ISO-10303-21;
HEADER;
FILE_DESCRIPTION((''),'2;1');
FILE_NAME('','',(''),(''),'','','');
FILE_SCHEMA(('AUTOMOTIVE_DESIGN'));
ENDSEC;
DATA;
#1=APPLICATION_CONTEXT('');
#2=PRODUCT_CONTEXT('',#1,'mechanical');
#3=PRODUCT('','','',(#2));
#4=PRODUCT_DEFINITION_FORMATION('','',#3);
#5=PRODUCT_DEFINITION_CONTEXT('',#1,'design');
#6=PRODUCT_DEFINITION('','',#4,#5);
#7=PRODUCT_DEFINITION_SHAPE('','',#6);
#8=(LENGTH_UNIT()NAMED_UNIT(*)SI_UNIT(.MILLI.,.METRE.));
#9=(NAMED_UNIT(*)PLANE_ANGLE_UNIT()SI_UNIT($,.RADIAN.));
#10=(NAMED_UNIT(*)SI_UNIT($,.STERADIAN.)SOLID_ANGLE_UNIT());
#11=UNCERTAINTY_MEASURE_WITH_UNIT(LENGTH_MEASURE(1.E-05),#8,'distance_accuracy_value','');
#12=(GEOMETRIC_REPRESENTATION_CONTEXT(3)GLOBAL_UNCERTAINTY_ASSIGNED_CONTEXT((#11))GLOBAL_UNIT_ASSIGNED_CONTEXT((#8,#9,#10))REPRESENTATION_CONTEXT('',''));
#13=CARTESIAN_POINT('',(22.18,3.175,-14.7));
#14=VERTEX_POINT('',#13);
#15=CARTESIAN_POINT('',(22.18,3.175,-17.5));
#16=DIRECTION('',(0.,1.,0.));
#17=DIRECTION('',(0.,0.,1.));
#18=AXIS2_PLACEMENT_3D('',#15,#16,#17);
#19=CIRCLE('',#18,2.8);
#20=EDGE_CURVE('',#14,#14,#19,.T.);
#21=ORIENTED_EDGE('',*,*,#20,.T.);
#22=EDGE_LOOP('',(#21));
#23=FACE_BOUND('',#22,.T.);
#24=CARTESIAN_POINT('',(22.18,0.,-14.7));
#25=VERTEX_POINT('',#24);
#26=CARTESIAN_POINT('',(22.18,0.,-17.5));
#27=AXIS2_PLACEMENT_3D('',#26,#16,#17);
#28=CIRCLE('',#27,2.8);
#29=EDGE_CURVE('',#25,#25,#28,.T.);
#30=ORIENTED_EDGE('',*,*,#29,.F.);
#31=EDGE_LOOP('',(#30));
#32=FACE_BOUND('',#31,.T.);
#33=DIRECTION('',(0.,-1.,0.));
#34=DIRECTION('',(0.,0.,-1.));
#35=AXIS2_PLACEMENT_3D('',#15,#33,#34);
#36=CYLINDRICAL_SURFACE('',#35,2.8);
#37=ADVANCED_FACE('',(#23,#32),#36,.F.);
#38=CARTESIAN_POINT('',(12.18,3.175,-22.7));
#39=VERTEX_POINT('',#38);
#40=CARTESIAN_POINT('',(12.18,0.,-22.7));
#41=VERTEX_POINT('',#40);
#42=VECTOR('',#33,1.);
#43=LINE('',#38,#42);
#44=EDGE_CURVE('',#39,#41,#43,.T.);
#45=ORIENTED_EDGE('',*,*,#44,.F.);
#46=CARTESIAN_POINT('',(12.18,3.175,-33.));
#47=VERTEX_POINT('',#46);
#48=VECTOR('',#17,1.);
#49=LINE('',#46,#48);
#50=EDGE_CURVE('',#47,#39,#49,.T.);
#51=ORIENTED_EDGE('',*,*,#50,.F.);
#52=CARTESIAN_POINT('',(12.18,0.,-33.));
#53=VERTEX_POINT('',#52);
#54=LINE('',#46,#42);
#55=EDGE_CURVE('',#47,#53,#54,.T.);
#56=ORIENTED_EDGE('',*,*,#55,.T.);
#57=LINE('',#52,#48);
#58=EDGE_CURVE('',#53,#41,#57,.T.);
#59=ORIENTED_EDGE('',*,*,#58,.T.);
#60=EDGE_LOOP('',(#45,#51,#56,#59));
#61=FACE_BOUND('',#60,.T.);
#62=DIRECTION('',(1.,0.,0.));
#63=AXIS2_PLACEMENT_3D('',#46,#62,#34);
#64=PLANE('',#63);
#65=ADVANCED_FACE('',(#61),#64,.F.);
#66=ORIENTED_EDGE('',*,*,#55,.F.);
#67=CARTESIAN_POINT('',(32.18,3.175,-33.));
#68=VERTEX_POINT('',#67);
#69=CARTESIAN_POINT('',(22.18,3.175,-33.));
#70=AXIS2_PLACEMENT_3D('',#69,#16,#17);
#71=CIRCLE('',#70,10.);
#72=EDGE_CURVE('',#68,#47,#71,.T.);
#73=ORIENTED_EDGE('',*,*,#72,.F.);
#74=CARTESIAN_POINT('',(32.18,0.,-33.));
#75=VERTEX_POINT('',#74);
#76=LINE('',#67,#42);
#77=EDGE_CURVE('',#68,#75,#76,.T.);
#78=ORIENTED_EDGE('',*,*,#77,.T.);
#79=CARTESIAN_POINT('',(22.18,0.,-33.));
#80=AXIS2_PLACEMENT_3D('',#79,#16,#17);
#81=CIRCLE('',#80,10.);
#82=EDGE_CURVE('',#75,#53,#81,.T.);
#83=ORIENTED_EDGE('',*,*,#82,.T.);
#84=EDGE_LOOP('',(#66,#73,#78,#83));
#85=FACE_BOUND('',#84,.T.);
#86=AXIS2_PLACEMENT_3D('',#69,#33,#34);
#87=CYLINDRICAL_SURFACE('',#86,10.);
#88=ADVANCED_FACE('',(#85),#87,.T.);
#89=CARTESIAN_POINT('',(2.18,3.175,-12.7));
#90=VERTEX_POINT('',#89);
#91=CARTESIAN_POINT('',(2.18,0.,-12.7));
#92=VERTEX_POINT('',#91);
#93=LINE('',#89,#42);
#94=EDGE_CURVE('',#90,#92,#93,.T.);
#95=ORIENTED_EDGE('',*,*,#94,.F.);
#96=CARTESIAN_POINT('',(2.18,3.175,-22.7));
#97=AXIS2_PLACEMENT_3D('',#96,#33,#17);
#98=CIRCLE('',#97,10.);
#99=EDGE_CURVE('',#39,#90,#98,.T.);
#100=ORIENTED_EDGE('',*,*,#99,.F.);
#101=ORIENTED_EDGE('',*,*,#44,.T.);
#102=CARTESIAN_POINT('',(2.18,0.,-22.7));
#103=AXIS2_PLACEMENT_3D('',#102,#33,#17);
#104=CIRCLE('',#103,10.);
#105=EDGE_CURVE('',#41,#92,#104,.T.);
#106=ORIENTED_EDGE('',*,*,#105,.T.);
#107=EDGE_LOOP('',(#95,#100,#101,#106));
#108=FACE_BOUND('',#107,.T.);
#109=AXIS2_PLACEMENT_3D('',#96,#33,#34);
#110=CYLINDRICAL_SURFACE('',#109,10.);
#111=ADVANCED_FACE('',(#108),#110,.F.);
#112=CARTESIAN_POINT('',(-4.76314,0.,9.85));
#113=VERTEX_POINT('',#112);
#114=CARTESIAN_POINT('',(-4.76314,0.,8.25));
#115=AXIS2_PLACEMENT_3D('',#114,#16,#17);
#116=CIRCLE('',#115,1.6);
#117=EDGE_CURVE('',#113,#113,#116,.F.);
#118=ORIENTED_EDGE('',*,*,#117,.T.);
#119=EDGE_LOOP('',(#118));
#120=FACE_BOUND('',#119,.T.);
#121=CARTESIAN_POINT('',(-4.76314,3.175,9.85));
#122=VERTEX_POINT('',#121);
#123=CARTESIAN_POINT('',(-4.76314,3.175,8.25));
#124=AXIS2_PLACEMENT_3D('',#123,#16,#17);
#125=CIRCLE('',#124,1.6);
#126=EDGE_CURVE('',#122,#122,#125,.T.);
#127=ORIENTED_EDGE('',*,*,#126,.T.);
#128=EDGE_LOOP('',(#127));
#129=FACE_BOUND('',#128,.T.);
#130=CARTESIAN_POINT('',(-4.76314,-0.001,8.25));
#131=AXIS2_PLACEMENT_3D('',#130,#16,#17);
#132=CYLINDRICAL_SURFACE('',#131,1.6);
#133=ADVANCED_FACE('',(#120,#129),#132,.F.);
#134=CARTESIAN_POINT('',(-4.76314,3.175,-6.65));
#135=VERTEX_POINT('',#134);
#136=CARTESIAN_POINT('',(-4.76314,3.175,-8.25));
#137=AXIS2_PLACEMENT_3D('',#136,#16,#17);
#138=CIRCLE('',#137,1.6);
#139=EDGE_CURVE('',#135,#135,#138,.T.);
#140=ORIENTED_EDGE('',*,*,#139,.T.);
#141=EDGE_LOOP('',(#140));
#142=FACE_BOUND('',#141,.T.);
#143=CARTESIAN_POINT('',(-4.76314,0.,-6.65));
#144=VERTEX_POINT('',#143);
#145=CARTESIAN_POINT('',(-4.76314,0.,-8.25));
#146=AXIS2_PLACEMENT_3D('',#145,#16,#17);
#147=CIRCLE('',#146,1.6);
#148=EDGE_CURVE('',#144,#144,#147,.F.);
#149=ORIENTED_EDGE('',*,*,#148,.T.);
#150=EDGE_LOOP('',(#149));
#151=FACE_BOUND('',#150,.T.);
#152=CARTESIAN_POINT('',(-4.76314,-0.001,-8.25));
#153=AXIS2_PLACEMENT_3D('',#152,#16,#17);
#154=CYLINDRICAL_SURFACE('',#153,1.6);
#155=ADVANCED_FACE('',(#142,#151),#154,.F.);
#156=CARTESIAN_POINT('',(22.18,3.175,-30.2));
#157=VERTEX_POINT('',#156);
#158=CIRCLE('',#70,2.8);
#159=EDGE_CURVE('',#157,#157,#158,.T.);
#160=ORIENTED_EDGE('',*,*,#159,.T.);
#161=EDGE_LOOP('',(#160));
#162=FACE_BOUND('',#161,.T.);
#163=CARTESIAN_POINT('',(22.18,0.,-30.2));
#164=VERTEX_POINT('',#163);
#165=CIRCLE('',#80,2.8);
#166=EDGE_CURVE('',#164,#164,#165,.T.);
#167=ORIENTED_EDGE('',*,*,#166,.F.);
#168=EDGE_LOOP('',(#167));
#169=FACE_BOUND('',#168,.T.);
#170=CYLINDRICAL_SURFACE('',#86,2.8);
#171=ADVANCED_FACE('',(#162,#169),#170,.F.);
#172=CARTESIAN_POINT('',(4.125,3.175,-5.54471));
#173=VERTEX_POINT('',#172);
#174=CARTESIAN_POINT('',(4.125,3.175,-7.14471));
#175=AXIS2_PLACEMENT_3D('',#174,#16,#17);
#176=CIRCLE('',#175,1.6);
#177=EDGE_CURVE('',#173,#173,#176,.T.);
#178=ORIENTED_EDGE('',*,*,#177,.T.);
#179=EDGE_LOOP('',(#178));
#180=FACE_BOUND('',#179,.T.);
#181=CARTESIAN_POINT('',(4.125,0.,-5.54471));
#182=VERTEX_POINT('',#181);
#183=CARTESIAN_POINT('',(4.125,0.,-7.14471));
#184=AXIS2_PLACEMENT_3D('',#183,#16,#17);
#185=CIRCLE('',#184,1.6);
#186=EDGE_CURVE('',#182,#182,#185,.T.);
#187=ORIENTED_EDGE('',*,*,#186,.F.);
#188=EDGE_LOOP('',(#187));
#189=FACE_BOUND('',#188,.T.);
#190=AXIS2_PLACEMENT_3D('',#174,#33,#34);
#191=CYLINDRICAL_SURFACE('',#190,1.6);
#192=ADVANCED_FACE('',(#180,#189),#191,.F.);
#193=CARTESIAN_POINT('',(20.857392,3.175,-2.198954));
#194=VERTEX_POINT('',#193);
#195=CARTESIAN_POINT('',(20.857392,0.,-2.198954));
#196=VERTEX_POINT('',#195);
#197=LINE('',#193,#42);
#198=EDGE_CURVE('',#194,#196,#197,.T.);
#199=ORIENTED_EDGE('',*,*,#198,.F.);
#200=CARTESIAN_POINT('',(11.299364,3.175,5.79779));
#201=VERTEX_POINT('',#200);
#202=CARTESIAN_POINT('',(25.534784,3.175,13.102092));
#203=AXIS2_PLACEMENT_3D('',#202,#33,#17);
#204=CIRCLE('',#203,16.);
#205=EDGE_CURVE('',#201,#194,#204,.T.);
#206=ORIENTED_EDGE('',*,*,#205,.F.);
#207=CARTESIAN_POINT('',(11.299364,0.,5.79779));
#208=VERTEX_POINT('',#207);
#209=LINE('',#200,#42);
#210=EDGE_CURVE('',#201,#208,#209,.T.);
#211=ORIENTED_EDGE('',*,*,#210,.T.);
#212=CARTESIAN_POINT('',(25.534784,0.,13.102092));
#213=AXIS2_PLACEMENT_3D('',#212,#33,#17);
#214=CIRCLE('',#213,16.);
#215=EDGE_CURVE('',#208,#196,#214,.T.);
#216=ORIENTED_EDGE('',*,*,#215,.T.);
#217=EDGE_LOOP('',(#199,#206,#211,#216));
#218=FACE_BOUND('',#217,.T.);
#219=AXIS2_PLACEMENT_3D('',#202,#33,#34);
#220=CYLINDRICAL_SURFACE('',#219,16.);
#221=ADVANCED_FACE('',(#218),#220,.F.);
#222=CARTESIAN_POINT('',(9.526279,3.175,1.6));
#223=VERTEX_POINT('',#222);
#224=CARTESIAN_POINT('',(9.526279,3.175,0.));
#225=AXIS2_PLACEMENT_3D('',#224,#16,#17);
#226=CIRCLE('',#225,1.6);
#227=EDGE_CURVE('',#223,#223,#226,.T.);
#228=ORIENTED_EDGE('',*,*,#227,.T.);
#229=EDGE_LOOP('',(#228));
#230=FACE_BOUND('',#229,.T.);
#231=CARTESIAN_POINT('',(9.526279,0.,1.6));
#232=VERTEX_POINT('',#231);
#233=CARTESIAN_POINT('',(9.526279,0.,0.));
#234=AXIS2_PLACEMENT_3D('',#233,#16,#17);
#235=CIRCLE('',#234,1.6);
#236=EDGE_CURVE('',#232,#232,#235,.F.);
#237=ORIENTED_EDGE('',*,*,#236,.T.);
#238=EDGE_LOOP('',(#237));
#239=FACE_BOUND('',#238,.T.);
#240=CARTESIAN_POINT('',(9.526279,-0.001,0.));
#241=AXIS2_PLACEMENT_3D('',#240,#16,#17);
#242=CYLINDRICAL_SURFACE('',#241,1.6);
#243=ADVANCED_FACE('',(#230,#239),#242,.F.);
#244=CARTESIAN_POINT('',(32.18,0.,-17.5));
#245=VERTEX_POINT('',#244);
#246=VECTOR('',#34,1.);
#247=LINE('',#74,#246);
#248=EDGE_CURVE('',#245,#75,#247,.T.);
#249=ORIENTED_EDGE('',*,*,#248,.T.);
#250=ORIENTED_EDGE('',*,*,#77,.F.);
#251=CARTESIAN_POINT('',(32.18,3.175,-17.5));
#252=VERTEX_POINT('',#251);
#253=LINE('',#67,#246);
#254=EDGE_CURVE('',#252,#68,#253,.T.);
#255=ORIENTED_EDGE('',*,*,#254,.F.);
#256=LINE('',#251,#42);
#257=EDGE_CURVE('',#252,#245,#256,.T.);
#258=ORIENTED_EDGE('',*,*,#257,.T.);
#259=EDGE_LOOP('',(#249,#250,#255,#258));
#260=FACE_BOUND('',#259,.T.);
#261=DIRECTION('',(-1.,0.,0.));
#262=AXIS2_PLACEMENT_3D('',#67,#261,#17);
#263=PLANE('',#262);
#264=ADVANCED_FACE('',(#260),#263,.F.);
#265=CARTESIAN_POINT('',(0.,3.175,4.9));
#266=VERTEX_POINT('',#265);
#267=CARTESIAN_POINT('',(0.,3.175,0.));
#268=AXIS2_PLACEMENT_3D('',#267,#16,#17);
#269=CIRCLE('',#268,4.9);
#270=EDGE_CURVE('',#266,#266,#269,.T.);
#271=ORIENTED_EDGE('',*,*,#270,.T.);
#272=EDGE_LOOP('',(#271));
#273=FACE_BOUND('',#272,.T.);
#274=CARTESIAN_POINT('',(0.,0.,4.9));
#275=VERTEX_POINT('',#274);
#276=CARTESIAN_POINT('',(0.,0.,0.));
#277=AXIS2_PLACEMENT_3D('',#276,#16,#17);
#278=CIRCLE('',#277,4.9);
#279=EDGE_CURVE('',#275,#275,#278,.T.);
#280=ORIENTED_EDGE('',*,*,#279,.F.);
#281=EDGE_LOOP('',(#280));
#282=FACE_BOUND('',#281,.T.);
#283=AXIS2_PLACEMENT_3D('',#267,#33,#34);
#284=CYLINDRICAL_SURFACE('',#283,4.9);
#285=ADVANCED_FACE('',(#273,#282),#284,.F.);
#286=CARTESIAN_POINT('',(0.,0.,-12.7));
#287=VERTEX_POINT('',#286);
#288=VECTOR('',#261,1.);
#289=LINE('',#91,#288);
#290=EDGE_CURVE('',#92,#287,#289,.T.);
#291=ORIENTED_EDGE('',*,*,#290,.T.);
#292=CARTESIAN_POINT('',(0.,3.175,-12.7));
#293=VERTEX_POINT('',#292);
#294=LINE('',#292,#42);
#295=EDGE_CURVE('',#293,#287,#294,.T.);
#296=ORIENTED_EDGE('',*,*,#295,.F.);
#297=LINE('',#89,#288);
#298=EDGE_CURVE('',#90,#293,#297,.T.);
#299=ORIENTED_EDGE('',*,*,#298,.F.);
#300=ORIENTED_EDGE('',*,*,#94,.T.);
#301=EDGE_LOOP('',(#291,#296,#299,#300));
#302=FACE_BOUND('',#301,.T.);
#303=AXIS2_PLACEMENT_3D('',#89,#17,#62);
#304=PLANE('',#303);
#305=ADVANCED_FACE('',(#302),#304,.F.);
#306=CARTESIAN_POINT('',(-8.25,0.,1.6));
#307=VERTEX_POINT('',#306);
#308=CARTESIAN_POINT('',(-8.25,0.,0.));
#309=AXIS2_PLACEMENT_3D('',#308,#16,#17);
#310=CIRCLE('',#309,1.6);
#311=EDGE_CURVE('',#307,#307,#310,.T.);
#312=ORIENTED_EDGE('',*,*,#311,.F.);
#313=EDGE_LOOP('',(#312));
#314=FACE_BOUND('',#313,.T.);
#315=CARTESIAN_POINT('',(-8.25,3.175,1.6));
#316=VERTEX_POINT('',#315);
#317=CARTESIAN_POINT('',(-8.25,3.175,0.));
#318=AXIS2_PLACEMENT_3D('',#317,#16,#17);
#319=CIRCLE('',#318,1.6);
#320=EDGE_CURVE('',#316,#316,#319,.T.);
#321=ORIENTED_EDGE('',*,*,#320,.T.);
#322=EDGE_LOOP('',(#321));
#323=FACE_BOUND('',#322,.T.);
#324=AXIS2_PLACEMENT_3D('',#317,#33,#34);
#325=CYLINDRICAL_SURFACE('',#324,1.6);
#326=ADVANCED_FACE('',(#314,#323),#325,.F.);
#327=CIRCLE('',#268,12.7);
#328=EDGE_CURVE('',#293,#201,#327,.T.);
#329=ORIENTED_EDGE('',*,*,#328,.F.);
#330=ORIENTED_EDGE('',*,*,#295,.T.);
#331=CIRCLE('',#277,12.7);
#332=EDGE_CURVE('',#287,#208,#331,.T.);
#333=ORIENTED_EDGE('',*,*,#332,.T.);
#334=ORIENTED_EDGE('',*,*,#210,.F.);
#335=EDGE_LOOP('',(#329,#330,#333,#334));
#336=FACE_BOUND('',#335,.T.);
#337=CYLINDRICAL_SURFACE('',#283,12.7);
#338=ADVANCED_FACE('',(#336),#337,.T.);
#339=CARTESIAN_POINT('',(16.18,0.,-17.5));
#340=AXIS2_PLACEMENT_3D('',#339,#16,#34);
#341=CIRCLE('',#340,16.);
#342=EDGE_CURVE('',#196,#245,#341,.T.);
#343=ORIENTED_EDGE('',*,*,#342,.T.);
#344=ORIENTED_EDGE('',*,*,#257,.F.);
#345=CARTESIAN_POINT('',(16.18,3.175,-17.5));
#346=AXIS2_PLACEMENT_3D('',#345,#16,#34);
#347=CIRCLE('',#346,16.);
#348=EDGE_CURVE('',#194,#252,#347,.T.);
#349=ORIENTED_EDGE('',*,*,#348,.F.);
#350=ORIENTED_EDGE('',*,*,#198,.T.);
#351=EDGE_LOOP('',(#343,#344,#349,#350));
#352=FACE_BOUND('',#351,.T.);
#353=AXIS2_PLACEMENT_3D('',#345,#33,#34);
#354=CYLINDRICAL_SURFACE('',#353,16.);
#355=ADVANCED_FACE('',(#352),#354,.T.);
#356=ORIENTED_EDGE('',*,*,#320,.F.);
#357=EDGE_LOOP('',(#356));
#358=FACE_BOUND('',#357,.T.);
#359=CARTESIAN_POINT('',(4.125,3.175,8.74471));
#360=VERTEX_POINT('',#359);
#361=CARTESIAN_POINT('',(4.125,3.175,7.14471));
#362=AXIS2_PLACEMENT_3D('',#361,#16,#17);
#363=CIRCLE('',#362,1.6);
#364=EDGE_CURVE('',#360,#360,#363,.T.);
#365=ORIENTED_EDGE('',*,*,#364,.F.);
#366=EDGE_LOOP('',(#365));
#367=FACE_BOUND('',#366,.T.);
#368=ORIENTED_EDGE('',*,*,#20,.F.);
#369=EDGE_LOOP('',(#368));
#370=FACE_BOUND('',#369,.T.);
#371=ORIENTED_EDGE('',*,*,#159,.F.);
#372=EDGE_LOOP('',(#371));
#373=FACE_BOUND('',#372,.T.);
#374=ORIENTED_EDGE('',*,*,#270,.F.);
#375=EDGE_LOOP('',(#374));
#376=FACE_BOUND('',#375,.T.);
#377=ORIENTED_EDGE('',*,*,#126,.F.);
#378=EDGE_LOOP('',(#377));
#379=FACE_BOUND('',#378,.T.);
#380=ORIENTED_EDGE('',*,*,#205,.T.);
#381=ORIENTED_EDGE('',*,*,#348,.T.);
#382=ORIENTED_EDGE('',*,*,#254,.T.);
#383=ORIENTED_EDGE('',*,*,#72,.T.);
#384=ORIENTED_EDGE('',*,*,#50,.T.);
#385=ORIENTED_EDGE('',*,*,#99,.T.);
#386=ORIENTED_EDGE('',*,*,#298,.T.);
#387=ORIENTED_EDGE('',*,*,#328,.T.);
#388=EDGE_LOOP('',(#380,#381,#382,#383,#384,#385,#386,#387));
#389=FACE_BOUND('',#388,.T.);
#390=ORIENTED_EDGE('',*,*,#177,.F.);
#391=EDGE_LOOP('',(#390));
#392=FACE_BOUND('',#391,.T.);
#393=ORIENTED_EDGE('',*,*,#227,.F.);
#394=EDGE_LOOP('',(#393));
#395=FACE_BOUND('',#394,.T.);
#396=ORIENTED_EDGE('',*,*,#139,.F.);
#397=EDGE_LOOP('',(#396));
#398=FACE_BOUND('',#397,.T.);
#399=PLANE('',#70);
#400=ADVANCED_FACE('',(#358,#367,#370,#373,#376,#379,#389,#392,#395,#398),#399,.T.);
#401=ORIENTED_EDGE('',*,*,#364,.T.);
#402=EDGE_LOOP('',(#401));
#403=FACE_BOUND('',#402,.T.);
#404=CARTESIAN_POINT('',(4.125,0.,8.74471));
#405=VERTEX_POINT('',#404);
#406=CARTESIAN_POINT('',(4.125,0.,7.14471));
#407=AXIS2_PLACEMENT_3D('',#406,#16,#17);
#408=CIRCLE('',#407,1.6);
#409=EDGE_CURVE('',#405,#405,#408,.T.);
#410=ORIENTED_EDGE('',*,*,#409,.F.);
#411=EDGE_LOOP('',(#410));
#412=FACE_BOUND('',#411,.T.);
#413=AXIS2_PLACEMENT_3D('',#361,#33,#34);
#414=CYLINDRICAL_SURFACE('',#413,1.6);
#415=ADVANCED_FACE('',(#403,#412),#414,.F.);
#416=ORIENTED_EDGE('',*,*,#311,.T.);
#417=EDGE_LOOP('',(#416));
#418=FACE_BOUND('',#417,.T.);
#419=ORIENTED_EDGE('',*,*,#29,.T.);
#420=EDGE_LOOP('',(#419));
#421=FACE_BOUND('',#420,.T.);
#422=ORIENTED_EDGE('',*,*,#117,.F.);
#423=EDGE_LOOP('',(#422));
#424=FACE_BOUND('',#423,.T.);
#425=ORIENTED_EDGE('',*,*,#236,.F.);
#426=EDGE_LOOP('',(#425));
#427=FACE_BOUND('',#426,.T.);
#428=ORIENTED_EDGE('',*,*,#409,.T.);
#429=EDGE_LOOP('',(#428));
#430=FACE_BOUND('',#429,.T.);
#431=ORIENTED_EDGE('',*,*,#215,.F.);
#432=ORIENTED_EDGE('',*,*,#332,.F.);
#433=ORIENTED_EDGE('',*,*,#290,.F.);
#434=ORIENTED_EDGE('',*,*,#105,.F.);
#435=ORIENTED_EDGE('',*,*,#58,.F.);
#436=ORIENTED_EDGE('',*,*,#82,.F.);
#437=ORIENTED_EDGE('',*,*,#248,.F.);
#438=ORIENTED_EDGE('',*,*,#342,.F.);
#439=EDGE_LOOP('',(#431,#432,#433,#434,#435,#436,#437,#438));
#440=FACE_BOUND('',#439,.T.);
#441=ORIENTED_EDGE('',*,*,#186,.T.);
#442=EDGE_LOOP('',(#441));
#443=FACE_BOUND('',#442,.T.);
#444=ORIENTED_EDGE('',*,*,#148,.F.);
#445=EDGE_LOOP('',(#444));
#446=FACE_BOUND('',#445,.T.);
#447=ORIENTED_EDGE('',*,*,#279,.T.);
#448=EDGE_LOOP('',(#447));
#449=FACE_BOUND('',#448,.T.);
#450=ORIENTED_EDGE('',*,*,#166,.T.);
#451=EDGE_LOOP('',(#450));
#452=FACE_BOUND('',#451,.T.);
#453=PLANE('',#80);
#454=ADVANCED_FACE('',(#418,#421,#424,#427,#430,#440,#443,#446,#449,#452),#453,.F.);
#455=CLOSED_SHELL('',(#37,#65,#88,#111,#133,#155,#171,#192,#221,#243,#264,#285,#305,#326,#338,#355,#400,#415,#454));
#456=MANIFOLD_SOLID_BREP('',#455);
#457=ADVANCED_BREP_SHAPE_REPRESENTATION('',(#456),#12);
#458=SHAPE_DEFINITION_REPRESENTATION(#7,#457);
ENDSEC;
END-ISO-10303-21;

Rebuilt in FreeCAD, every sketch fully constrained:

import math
import FreeCAD as App
import Part
import Sketcher
from FreeCAD import Vector

doc = App.newDocument("Part")
body = doc.addObject("PartDesign::Body", "Body")

sketch1 = body.newObject("Sketcher::SketchObject", "Sketch")
sketch1.AttachmentSupport = (doc.getObject("XZ_Plane"), [""])
sketch1.MapMode = "FlatFace"
sketch1.addGeometry([
    Part.LineSegment(Vector(12.2, -33, 0), Vector(12.2, -22.7, 0)),
    Part.ArcOfCircle(Part.Circle(Vector(2.2, -22.7, 0), Vector(0, 0, 1), 10), math.radians(0), math.radians(90)),
    Part.LineSegment(Vector(2.2, -12.7, 0), Vector(0, -12.7, 0)),
    Part.ArcOfCircle(Part.Circle(Vector(0, 0, 0), Vector(0, 0, 1), 12.7), math.radians(27), math.radians(270)),
    Part.ArcOfCircle(Part.Circle(Vector(25.5, 13.1, 0), Vector(0, 0, 1), 16), math.radians(-153), math.radians(-107)),
    Part.ArcOfCircle(Part.Circle(Vector(16.2, -17.5, 0), Vector(0, 0, 1), 16), math.radians(0), math.radians(73)),
    Part.LineSegment(Vector(32.2, -17.5, 0), Vector(32.2, -33, 0)),
    Part.ArcOfCircle(Part.Circle(Vector(22.2, -33, 0), Vector(0, 0, 1), 10), math.radians(180), math.radians(360)),
    Part.Circle(Vector(-8.2, 0, 0), Vector(0, 0, 1), 1.6),
    Part.Circle(Vector(4.1, 7.1, 0), Vector(0, 0, 1), 1.6),
    Part.Circle(Vector(0, 0, 0), Vector(0, 0, 1), 4.9),
    Part.Circle(Vector(4.1, -7.1, 0), Vector(0, 0, 1), 1.6),
    Part.Circle(Vector(22.2, -17.5, 0), Vector(0, 0, 1), 2.8),
    Part.Circle(Vector(22.2, -33, 0), Vector(0, 0, 1), 2.8),
], False)
sketch1.addConstraint([
    Sketcher.Constraint("Tangent", 0, 2, 1, 1),
    Sketcher.Constraint("Tangent", 1, 2, 2, 1),
    Sketcher.Constraint("Tangent", 2, 2, 3, 2),
    Sketcher.Constraint("Tangent", 3, 1, 4, 1),
    Sketcher.Constraint("Tangent", 4, 2, 5, 2),
    Sketcher.Constraint("Tangent", 5, 1, 6, 1),
    Sketcher.Constraint("Tangent", 6, 2, 7, 2),
    Sketcher.Constraint("Tangent", 7, 1, 0, 1),
    Sketcher.Constraint("Vertical", 0),
    Sketcher.Constraint("Horizontal", 2),
    Sketcher.Constraint("Vertical", 6),
    Sketcher.Constraint("Coincident", 3, 3, -1, 1),
    Sketcher.Constraint("Coincident", 10, 3, -1, 1),
    Sketcher.Constraint("Coincident", 13, 3, 7, 3),
    Sketcher.Constraint("Equal", 4, 5),
    Sketcher.Constraint("Equal", 1, 7),
    Sketcher.Constraint("Equal", 8, 9),
    Sketcher.Constraint("Equal", 9, 11),
    Sketcher.Constraint("Equal", 12, 13),
    Sketcher.Constraint("Symmetric", 9, 3, 11, 3, -1),
    Sketcher.Constraint("PointOnObject", 8, 3, -1),
    Sketcher.Constraint("Horizontal", 5, 3, 12, 3),
    Sketcher.Constraint("Vertical", 7, 3, 12, 3),
    Sketcher.Constraint("Radius", 1, 10.0),
    Sketcher.Constraint("Radius", 4, 16.0),
    Sketcher.Constraint("Diameter", 8, 3.2),
    Sketcher.Constraint("Diameter", 10, 9.8),
    Sketcher.Constraint("Diameter", 12, 5.6),
    Sketcher.Constraint("Radius", 3, 12.7),
    Sketcher.Constraint("DistanceY", 0, 1, 0, 2, 10.3),
    Sketcher.Constraint("DistanceY", 6, 2, 6, 1, 15.5),
    Sketcher.Constraint("DistanceX", 2, 2, 2, 1, 2.18),
    Sketcher.Constraint("DistanceX", 8, 3, -1, 1, 8.25),
    Sketcher.Constraint("DistanceX", -1, 1, 9, 3, 4.125),
    Sketcher.Constraint("DistanceY", 11, 3, 3, 1, 12.942499),
])
pad1 = body.newObject("PartDesign::Pad", "Pad")
pad1.Profile = sketch1
pad1.Length = 3.175
pad1.Reversed = True

sketch2 = body.newObject("Sketcher::SketchObject", "Sketch001")
sketch2.AttachmentSupport = (doc.getObject("XZ_Plane"), [""])
sketch2.MapMode = "FlatFace"
sketch2.AttachmentOffset = App.Placement(Vector(0, 0, -3.175), App.Rotation())
sketch2.addGeometry(Part.Circle(Vector(9.5, 0, 0), Vector(0, 0, 1), 1.6), False)
sketch2.addConstraint([
    Sketcher.Constraint("PointOnObject", 0, 3, -1),
    Sketcher.Constraint("Diameter", 0, 3.2),
    Sketcher.Constraint("DistanceX", -1, 1, 0, 3, 9.526279),
])
pocket1 = body.newObject("PartDesign::Pocket", "Pocket")
pocket1.Profile = sketch2
pocket1.Type = "UpToFirst"
pocket1.Reversed = True

sketch3 = body.newObject("Sketcher::SketchObject", "Sketch002")
sketch3.AttachmentSupport = (doc.getObject("XZ_Plane"), [""])
sketch3.MapMode = "FlatFace"
sketch3.AttachmentOffset = App.Placement(Vector(0, 0, -3.175), App.Rotation())
sketch3.addGeometry(Part.Circle(Vector(-4.8, 8.2, 0), Vector(0, 0, 1), 1.6), False)
sketch3.addConstraint([
    Sketcher.Constraint("Diameter", 0, 3.2),
    Sketcher.Constraint("DistanceY", -1, 1, 0, 3, 8.25),
    Sketcher.Constraint("DistanceX", 0, 3, -1, 1, 4.76314),
])
pocket2 = body.newObject("PartDesign::Pocket", "Pocket001")
pocket2.Profile = sketch3
pocket2.Type = "UpToFirst"
pocket2.Reversed = True

sketch4 = body.newObject("Sketcher::SketchObject", "Sketch003")
sketch4.AttachmentSupport = (doc.getObject("XZ_Plane"), [""])
sketch4.MapMode = "FlatFace"
sketch4.AttachmentOffset = App.Placement(Vector(0, 0, -3.175), App.Rotation())
sketch4.addGeometry(Part.Circle(Vector(-4.8, -8.2, 0), Vector(0, 0, 1), 1.6), False)
sketch4.addConstraint([
    Sketcher.Constraint("Diameter", 0, 3.2),
    Sketcher.Constraint("DistanceY", 0, 3, -1, 1, 8.25),
    Sketcher.Constraint("DistanceX", 0, 3, -1, 1, 4.76314),
])
pocket3 = body.newObject("PartDesign::Pocket", "Pocket002")
pocket3.Profile = sketch4
pocket3.Type = "UpToFirst"
pocket3.Reversed = True

doc.recompute()
